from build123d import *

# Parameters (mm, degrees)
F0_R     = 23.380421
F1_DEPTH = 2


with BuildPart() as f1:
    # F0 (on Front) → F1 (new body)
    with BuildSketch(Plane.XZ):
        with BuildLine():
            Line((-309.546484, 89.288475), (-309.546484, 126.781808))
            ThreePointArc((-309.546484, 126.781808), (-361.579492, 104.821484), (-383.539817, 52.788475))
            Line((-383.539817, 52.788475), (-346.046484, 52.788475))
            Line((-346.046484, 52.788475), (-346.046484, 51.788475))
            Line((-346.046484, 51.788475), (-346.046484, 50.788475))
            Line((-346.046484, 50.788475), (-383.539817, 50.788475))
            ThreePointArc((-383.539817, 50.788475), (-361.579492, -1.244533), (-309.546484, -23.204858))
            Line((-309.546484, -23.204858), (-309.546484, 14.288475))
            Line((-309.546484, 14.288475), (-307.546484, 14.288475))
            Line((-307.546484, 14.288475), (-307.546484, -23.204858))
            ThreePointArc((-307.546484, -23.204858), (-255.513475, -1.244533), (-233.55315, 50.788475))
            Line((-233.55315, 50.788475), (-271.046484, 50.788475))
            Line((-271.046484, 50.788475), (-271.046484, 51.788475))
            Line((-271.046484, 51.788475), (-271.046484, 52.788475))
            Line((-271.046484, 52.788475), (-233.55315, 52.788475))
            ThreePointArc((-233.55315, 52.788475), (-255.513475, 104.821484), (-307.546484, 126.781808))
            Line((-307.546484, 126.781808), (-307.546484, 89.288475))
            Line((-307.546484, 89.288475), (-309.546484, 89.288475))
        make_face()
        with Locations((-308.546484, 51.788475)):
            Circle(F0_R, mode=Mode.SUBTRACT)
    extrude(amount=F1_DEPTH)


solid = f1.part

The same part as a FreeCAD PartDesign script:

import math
import FreeCAD as App
import Part
import Sketcher

doc = App.newDocument("Part")
params = doc.addObject("Spreadsheet::Sheet", "Params")
for row, (alias, value) in enumerate([
    ("sketch1_radius", "75 mm"),
    ("sketch1_width", "2 mm"),
    ("pad1_length", "2 mm"),
], start=1):
    params.set(f"A{row}", alias)
    params.set(f"B{row}", "=" + value)
    params.setAlias(f"B{row}", alias)

body = doc.addObject("PartDesign::Body", "Body")

sketch1 = body.newObject("Sketcher::SketchObject", "Sketch")
sketch1.AttachmentSupport = (doc.getObject("XZ_Plane"), [""])
sketch1.MapMode = "FlatFace"
sketch1.addGeometry([
    Part.LineSegment(App.Vector(-309.546484, 89.288475, 0), App.Vector(-309.546484, 126.781808, 0)),
    Part.ArcOfCircle(Part.Circle(App.Vector(-308.546484, 51.788475, 0), App.Vector(0, 0, 1), 75), math.radians(90.763967), math.radians(179.236033)),
    Part.LineSegment(App.Vector(-383.539817, 52.788475, 0), App.Vector(-346.046484, 52.788475, 0)),
    Part.LineSegment(App.Vector(-346.046484, 52.788475, 0), App.Vector(-346.046484, 50.788475, 0)),
    Part.LineSegment(App.Vector(-346.046484, 50.788475, 0), App.Vector(-383.539817, 50.788475, 0)),
    Part.ArcOfCircle(Part.Circle(App.Vector(-308.546482, 51.788477, 0), App.Vector(0, 0, 1), 75.000002), math.radians(-179.236032), math.radians(-90.763968)),
    Part.LineSegment(App.Vector(-309.546484, -23.204858, 0), App.Vector(-309.546484, 14.288475, 0)),
    Part.LineSegment(App.Vector(-309.546484, 14.288475, 0), App.Vector(-307.546484, 14.288475, 0)),
    Part.LineSegment(App.Vector(-307.546484, 14.288475, 0), App.Vector(-307.546484, -23.204858, 0)),
    Part.ArcOfCircle(Part.Circle(App.Vector(-308.546485, 51.788477, 0), App.Vector(0, 0, 1), 75.000002), math.radians(-89.236033), math.radians(-0.763968)),
    Part.LineSegment(App.Vector(-233.55315, 50.788475, 0), App.Vector(-271.046484, 50.788475, 0)),
    Part.LineSegment(App.Vector(-271.046484, 50.788475, 0), App.Vector(-271.046484, 52.788475, 0)),
    Part.LineSegment(App.Vector(-271.046484, 52.788475, 0), App.Vector(-233.55315, 52.788475, 0)),
    Part.ArcOfCircle(Part.Circle(App.Vector(-308.546483, 51.788475, 0), App.Vector(0, 0, 1), 75), math.radians(0.763967), math.radians(89.236034)),
    Part.LineSegment(App.Vector(-307.546484, 126.781808, 0), App.Vector(-307.546484, 89.288475, 0)),
    Part.LineSegment(App.Vector(-307.546484, 89.288475, 0), App.Vector(-309.546484, 89.288475, 0)),
    Part.Circle(App.Vector(-308.546484, 51.788475, 0), App.Vector(0, 0, 1), 23.380421),
], False)
sketch1.addConstraint([
    Sketcher.Constraint("Coincident", 0, 2, 1, 1),
    Sketcher.Constraint("Coincident", 1, 2, 2, 1),
    Sketcher.Constraint("Coincident", 2, 2, 3, 1),
    Sketcher.Constraint("Coincident", 3, 2, 4, 1),
    Sketcher.Constraint("Coincident", 4, 2, 5, 1),
    Sketcher.Constraint("Coincident", 5, 2, 6, 1),
    Sketcher.Constraint("Coincident", 6, 2, 7, 1),
    Sketcher.Constraint("Coincident", 7, 2, 8, 1),
    Sketcher.Constraint("Coincident", 8, 2, 9, 1),
    Sketcher.Constraint("Coincident", 9, 2, 10, 1),
    Sketcher.Constraint("Coincident", 10, 2, 11, 1),
    Sketcher.Constraint("Coincident", 11, 2, 12, 1),
    Sketcher.Constraint("Coincident", 12, 2, 13, 1),
    Sketcher.Constraint("Coincident", 13, 2, 14, 1),
    Sketcher.Constraint("Coincident", 14, 2, 15, 1),
    Sketcher.Constraint("Coincident", 15, 2, 0, 1),
    Sketcher.Constraint("Vertical", 0),
    Sketcher.Constraint("Horizontal", 2),
    Sketcher.Constraint("Vertical", 3),
    Sketcher.Constraint("Horizontal", 4),
    Sketcher.Constraint("Vertical", 6),
    Sketcher.Constraint("Horizontal", 7),
    Sketcher.Constraint("Vertical", 8),
    Sketcher.Constraint("Horizontal", 10),
    Sketcher.Constraint("Vertical", 11),
    Sketcher.Constraint("Horizontal", 12),
    Sketcher.Constraint("Vertical", 14),
    Sketcher.Constraint("Horizontal", 15),
    Sketcher.Constraint("Coincident", 5, 3, 1, 3),
    Sketcher.Constraint("Coincident", 9, 3, 1, 3),
    Sketcher.Constraint("Coincident", 13, 3, 1, 3),
    Sketcher.Constraint("Coincident", 16, 3, 1, 3),
    Sketcher.Constraint("Equal", 1, 5),
    Sketcher.Constraint("Equal", 5, 9),
    Sketcher.Constraint("Equal", 9, 13),
    Sketcher.Constraint("Horizontal", 5, 2, 8, 2),
    Sketcher.Constraint("Horizontal", 4, 2, 9, 2),
    Sketcher.Constraint("Horizontal", 2, 2, 11, 2),
    Sketcher.Constraint("Horizontal", 0, 2, 13, 2),
    Sketcher.Constraint("Vertical", 1, 2, 4, 2),
    Sketcher.Constraint("Vertical", 0, 2, 5, 2),
    Sketcher.Constraint("Equal", 4, 10),
    Sketcher.Constraint("Equal", 12, 0),
    Sketcher.Constraint("Equal", 15, 3),
    Sketcher.Constraint("Equal", 0, 6),
    Sketcher.Constraint("Radius", 1, 75.0),
    Sketcher.Constraint("DistanceX", 7, 1, 7, 2, 2.0),
    Sketcher.Constraint("DistanceX", 2, 2, 9, 3, 37.499999),
    Sketcher.Constraint("Diameter", 16, 46.760842),
    Sketcher.Constraint("DistanceY", -1, 1, 0, 2, 126.781808),
    Sketcher.Constraint("DistanceX", 9, 2, -1, 1, 233.55315),
])
sketch1.setExpression("Constraints[45]", "Params.sketch1_radius")
sketch1.setExpression("Constraints[46]", "Params.sketch1_width")
pad1 = body.newObject("PartDesign::Pad", "Pad")
pad1.Profile = sketch1
pad1.setExpression("Length", "Params.pad1_length")

doc.recompute()
